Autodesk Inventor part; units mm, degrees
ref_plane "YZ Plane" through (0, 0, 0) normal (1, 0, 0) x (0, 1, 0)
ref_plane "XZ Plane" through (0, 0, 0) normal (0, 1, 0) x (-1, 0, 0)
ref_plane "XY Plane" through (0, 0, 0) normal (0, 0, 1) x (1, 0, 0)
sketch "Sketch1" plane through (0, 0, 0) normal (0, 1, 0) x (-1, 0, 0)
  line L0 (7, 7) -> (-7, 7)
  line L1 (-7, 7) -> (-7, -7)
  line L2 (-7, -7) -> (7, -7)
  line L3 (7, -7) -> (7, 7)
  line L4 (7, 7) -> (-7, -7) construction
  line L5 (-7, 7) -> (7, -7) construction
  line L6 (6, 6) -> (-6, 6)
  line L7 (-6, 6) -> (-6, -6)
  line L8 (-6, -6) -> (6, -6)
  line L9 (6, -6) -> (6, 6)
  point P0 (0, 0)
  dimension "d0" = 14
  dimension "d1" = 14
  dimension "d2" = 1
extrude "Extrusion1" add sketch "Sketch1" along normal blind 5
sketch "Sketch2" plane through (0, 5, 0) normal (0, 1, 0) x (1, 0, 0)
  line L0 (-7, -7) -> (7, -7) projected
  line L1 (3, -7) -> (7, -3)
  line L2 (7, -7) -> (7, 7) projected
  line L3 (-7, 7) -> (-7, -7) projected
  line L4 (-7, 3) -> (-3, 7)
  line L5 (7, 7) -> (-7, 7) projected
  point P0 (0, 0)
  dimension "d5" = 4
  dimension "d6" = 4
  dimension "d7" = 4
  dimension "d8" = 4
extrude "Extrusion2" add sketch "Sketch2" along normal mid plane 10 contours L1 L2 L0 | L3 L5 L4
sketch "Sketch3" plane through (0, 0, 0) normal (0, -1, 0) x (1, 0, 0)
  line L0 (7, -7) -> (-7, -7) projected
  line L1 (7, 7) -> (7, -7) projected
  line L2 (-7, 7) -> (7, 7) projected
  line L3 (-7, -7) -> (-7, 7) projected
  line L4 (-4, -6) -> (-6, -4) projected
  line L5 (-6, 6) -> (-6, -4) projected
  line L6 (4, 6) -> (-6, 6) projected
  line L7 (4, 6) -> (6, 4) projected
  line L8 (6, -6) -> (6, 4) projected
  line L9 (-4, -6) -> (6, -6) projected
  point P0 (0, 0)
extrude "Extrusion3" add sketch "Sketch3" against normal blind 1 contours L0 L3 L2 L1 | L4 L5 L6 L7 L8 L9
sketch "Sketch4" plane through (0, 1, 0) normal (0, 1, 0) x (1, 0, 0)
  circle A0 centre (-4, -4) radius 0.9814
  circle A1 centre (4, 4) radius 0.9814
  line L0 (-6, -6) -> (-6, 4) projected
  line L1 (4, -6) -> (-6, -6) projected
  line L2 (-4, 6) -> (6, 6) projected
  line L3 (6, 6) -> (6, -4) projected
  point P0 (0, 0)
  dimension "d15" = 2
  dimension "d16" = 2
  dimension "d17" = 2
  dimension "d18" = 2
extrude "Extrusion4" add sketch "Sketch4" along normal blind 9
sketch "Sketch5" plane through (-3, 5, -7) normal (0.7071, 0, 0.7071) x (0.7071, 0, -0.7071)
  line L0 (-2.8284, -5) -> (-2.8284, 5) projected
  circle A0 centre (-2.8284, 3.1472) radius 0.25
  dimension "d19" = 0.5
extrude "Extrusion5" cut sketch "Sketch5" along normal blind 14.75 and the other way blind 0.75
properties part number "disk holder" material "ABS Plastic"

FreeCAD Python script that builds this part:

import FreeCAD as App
import Part
import Sketcher


def add_polygon(sketch, points):
    """Adds a closed chain of lines whose ends are joined by coincident constraints."""
    first, n = sketch.GeometryCount, len(points)
    for a, b in zip(points, points[1:] + points[:1]):
        sketch.addGeometry(Part.LineSegment(App.Vector(*a, 0), App.Vector(*b, 0)), False)
    for i in range(n):
        sketch.addConstraint(Sketcher.Constraint("Coincident", first + i, 2, first + (i + 1) % n, 1))

doc = App.newDocument("Part")
body = doc.addObject("PartDesign::Body", "Body")

# Sketch on XZ plane
sketch1 = body.newObject("Sketcher::SketchObject", "Sketch")
sketch1.AttachmentSupport = (doc.getObject("XZ_Plane"), [""])
sketch1.MapMode = "FlatFace"
add_polygon(sketch1, [(-7, -7), (-7, 7), (7, 7), (7, -7)])  # lines 0-3
add_polygon(sketch1, [(6, 6), (-6, 6), (-6, -6), (6, -6)])  # lines 4-7
sketch1.addConstraint(Sketcher.Constraint("Vertical", 0))
sketch1.addConstraint(Sketcher.Constraint("Horizontal", 1))
sketch1.addConstraint(Sketcher.Constraint("Vertical", 2))
sketch1.addConstraint(Sketcher.Constraint("Horizontal", 3))
sketch1.addConstraint(Sketcher.Constraint("Horizontal", 4))
sketch1.addConstraint(Sketcher.Constraint("Vertical", 5))
sketch1.addConstraint(Sketcher.Constraint("Horizontal", 6))
sketch1.addConstraint(Sketcher.Constraint("Vertical", 7))
sketch1.addConstraint(Sketcher.Constraint("Symmetric", 0, 2, 2, 2, -1, 1))
sketch1.addConstraint(Sketcher.Constraint("Symmetric", 4, 2, 6, 2, -1, 1))
sketch1.addConstraint(Sketcher.Constraint("Equal", 3, 0))
sketch1.addConstraint(Sketcher.Constraint("Equal", 6, 5))
sketch1.addConstraint(Sketcher.Constraint("DistanceX", 1, 1, 1, 2, 14.0))
sketch1.addConstraint(Sketcher.Constraint("DistanceX", 0, 2, 4, 2, 1.0))
pad1 = body.newObject("PartDesign::Pad", "Pad")
pad1.Profile = sketch1
pad1.Length = 5
pad1.Reversed = True

# Sketch on XZ plane
sketch2 = body.newObject("Sketcher::SketchObject", "Sketch001")
sketch2.AttachmentSupport = (doc.getObject("XZ_Plane"), [""])
sketch2.MapMode = "FlatFace"
sketch2.AttachmentOffset = App.Placement(App.Vector(0, 0, -5), App.Rotation())
add_polygon(sketch2, [(7, 3), (3, 7), (7, 7)])  # lines 0-2
add_polygon(sketch2, [(-7, -7), (-7, -3), (-3, -7)])  # lines 3-5
sketch2.addConstraint(Sketcher.Constraint("Horizontal", 1))
sketch2.addConstraint(Sketcher.Constraint("Vertical", 2))
sketch2.addConstraint(Sketcher.Constraint("Vertical", 3))
sketch2.addConstraint(Sketcher.Constraint("Horizontal", 5))
sketch2.addConstraint(Sketcher.Constraint("Symmetric", 2, 2, 3, 2, -1, 1))
sketch2.addConstraint(Sketcher.Constraint("Symmetric", 0, 2, 4, 2, -1, 1))
sketch2.addConstraint(Sketcher.Constraint("Equal", 5, 2))
sketch2.addConstraint(Sketcher.Constraint("DistanceX", 1, 1, 1, 2, 4.0))
sketch2.addConstraint(Sketcher.Constraint("DistanceX", -1, 1, 0, 2, 3.0))
sketch2.addConstraint(Sketcher.Constraint("DistanceY", -1, 1, 0, 2, 7.0))
pad2 = body.newObject("PartDesign::Pad", "Pad001")
pad2.Profile = sketch2
pad2.Length = 10
pad2.Midplane = True

# Sketch on XZ plane
sketch3 = body.newObject("Sketcher::SketchObject", "Sketch002")
sketch3.AttachmentSupport = (doc.getObject("XZ_Plane"), [""])
sketch3.MapMode = "FlatFace"
add_polygon(sketch3, [(-7, -7), (7, -7), (7, 7), (-7, 7)])  # lines 0-3
sketch3.addConstraint(Sketcher.Constraint("Horizontal", 0))
sketch3.addConstraint(Sketcher.Constraint("Vertical", 1))
sketch3.addConstraint(Sketcher.Constraint("Horizontal", 2))
sketch3.addConstraint(Sketcher.Constraint("Vertical", 3))
sketch3.addConstraint(Sketcher.Constraint("Symmetric", 0, 2, 2, 2, -1, 1))
sketch3.addConstraint(Sketcher.Constraint("Equal", 2, 1))
sketch3.addConstraint(Sketcher.Constraint("DistanceX", 0, 1, 0, 2, 14.0))
pad3 = body.newObject("PartDesign::Pad", "Pad002")
pad3.Profile = sketch3
pad3.Length = 1
pad3.Reversed = True

# Sketch on XZ plane
sketch4 = body.newObject("Sketcher::SketchObject", "Sketch003")
sketch4.AttachmentSupport = (doc.getObject("XZ_Plane"), [""])
sketch4.MapMode = "FlatFace"
sketch4.AttachmentOffset = App.Placement(App.Vector(0, 0, -1), App.Rotation())
sketch4.addGeometry(Part.Circle(App.Vector(-4, 4, 0), App.Vector(0, 0, 1), 1), False)
sketch4.addGeometry(Part.Circle(App.Vector(4, -4, 0), App.Vector(0, 0, 1), 1), False)
sketch4.addConstraint(Sketcher.Constraint("Equal", 0, 1))
sketch4.addConstraint(Sketcher.Constraint("Symmetric", 0, 3, 1, 3, -1, 1))
sketch4.addConstraint(Sketcher.Constraint("DistanceX", 0, 3, -1, 1, 4.0))
sketch4.addConstraint(Sketcher.Constraint("DistanceY", -1, 1, 0, 3, 4.0))
sketch4.addConstraint(Sketcher.Constraint("Diameter", 0, 1.9628))
pad4 = body.newObject("PartDesign::Pad", "Pad003")
pad4.Profile = sketch4
pad4.Length = 9
pad4.Reversed = True

# Sketch on an angled plane
sketch5 = body.newObject("Sketcher::SketchObject", "Sketch004")
sketch5.Placement = App.Placement(App.Vector(-3, 5, -7), App.Rotation(App.Vector(0.707106781, 0, -0.707106781), App.Vector(0, 0.999999999, 0), App.Vector(0.707106781, 0, 0.707106781), "ZXY"))
sketch5.addGeometry(Part.Circle(App.Vector(-2.83, 3.15, 0), App.Vector(0, 0, 1), 0.25), False)
sketch5.addConstraint(Sketcher.Constraint("Diameter", 0, 0.5))
sketch5.addConstraint(Sketcher.Constraint("DistanceX", 0, 3, -1, 1, 2.8284))
sketch5.addConstraint(Sketcher.Constraint("DistanceY", -1, 1, 0, 3, 3.1472))
pocket1 = body.newObject("PartDesign::Pocket", "Pocket")
pocket1.Profile = sketch5
pocket1.Type = "TwoLengths"
pocket1.Length = 14.75
pocket1.Length2 = 0.75
pocket1.Reversed = True

doc.recompute()
